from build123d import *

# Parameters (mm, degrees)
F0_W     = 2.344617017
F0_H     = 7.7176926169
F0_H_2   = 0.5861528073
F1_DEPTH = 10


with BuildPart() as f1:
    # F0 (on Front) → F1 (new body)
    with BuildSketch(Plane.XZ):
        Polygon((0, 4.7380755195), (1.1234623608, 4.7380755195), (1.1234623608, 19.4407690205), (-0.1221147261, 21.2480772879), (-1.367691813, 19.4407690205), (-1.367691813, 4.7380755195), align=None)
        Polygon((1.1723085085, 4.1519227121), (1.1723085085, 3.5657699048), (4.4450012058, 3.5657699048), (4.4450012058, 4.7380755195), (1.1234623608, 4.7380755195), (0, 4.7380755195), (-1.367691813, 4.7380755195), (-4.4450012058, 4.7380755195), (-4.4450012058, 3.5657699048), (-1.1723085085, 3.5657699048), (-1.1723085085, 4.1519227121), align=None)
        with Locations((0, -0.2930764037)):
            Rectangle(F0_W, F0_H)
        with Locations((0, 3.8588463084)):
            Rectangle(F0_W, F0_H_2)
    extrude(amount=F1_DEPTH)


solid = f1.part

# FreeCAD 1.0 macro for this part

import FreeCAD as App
import Part
import Sketcher

V = App.Vector
Q = App.Units.Quantity

doc = App.newDocument("Part")
body = doc.addObject("PartDesign::Body", "Body")

# Sketch on XZ plane
sketch1 = doc.addObject("Sketcher::SketchObject", "Sketch")
body.addObject(sketch1)
sketch1.AttachmentSupport = (doc.XZ_Plane, [""])
sketch1.MapMode = "FlatFace"
sketch1.addGeometry(Part.LineSegment(V(1.1, 4.7, 0), V(1.1, 19.4, 0)), False)
sketch1.addGeometry(Part.LineSegment(V(1.1, 19.4, 0), V(-0.1, 21.2, 0)), False)
sketch1.addGeometry(Part.LineSegment(V(-0.1, 21.2, 0), V(-1.4, 19.4, 0)), False)
sketch1.addGeometry(Part.LineSegment(V(-1.4, 19.4, 0), V(-1.4, 4.7, 0)), False)
sketch1.addGeometry(Part.LineSegment(V(-1.4, 4.7, 0), V(-4.4, 4.7, 0)), False)
sketch1.addGeometry(Part.LineSegment(V(-4.4, 4.7, 0), V(-4.4, 3.6, 0)), False)
sketch1.addGeometry(Part.LineSegment(V(-4.4, 3.6, 0), V(-1.2, 3.6, 0)), False)
sketch1.addGeometry(Part.LineSegment(V(-1.2, 3.6, 0), V(-1.2, -4.2, 0)), False)
sketch1.addGeometry(Part.LineSegment(V(-1.2, -4.2, 0), V(1.2, -4.2, 0)), False)
sketch1.addGeometry(Part.LineSegment(V(1.2, -4.2, 0), V(1.2, 3.6, 0)), False)
sketch1.addGeometry(Part.LineSegment(V(1.2, 3.6, 0), V(4.4, 3.6, 0)), False)
sketch1.addGeometry(Part.LineSegment(V(4.4, 3.6, 0), V(4.4, 4.7, 0)), False)
sketch1.addGeometry(Part.LineSegment(V(4.4, 4.7, 0), V(1.1, 4.7, 0)), False)
sketch1.addConstraint(Sketcher.Constraint("Coincident", 0, 2, 1, 1))
sketch1.addConstraint(Sketcher.Constraint("Coincident", 1, 2, 2, 1))
sketch1.addConstraint(Sketcher.Constraint("Coincident", 2, 2, 3, 1))
sketch1.addConstraint(Sketcher.Constraint("Coincident", 3, 2, 4, 1))
sketch1.addConstraint(Sketcher.Constraint("Coincident", 4, 2, 5, 1))
sketch1.addConstraint(Sketcher.Constraint("Coincident", 5, 2, 6, 1))
sketch1.addConstraint(Sketcher.Constraint("Coincident", 6, 2, 7, 1))
sketch1.addConstraint(Sketcher.Constraint("Coincident", 7, 2, 8, 1))
sketch1.addConstraint(Sketcher.Constraint("Coincident", 8, 2, 9, 1))
sketch1.addConstraint(Sketcher.Constraint("Coincident", 9, 2, 10, 1))
sketch1.addConstraint(Sketcher.Constraint("Coincident", 10, 2, 11, 1))
sketch1.addConstraint(Sketcher.Constraint("Coincident", 11, 2, 12, 1))
sketch1.addConstraint(Sketcher.Constraint("Coincident", 12, 2, 0, 1))
sketch1.addConstraint(Sketcher.Constraint("Vertical", 0))
sketch1.addConstraint(Sketcher.Constraint("Vertical", 3))
sketch1.addConstraint(Sketcher.Constraint("Horizontal", 4))
sketch1.addConstraint(Sketcher.Constraint("Vertical", 5))
sketch1.addConstraint(Sketcher.Constraint("Horizontal", 6))
sketch1.addConstraint(Sketcher.Constraint("Vertical", 7))
sketch1.addConstraint(Sketcher.Constraint("Horizontal", 8))
sketch1.addConstraint(Sketcher.Constraint("Vertical", 9))
sketch1.addConstraint(Sketcher.Constraint("Horizontal", 10))
sketch1.addConstraint(Sketcher.Constraint("Vertical", 11))
sketch1.addConstraint(Sketcher.Constraint("Horizontal", 12))
sketch1.addConstraint(Sketcher.Constraint("Symmetric", 6, 2, 9, 2, -2))
sketch1.addConstraint(Sketcher.Constraint("Symmetric", 4, 2, 11, 2, -2))
sketch1.addConstraint(Sketcher.Constraint("Horizontal", 0, 2, 2, 2))
sketch1.addConstraint(Sketcher.Constraint("Equal", 1, 2))
sketch1.addConstraint(Sketcher.Constraint("DistanceY", 3, 2, 1, 2, Q("16.510002 mm")))
sketch1.addConstraint(Sketcher.Constraint("DistanceY", 7, 2, 3, 2, Q("8.889998 mm")))
sketch1.addConstraint(Sketcher.Constraint("DistanceX", 3, 2, 8, 2, Q("2.54 mm")))
sketch1.addConstraint(Sketcher.Constraint("DistanceX", 4, 2, -1, 1, Q("4.445001 mm")))
sketch1.addConstraint(Sketcher.Constraint("DistanceY", 5, 2, 2, 2, Q("15.874999 mm")))
sketch1.addConstraint(Sketcher.Constraint("DistanceX", 4, 2, 4, 1, Q("3.077309 mm")))
sketch1.addConstraint(Sketcher.Constraint("DistanceX", 12, 2, 12, 1, Q("3.321539 mm")))
sketch1.addConstraint(Sketcher.Constraint("DistanceY", 0, 1, 0, 2, Q("14.702694 mm")))
sketch1.addConstraint(Sketcher.Constraint("DistanceY", -1, 1, 0, 2, Q("19.440769 mm")))
pad1 = doc.addObject("PartDesign::Pad", "Pad")
body.addObject(pad1)
pad1.Profile = sketch1
pad1.Length = 10

doc.recompute()
